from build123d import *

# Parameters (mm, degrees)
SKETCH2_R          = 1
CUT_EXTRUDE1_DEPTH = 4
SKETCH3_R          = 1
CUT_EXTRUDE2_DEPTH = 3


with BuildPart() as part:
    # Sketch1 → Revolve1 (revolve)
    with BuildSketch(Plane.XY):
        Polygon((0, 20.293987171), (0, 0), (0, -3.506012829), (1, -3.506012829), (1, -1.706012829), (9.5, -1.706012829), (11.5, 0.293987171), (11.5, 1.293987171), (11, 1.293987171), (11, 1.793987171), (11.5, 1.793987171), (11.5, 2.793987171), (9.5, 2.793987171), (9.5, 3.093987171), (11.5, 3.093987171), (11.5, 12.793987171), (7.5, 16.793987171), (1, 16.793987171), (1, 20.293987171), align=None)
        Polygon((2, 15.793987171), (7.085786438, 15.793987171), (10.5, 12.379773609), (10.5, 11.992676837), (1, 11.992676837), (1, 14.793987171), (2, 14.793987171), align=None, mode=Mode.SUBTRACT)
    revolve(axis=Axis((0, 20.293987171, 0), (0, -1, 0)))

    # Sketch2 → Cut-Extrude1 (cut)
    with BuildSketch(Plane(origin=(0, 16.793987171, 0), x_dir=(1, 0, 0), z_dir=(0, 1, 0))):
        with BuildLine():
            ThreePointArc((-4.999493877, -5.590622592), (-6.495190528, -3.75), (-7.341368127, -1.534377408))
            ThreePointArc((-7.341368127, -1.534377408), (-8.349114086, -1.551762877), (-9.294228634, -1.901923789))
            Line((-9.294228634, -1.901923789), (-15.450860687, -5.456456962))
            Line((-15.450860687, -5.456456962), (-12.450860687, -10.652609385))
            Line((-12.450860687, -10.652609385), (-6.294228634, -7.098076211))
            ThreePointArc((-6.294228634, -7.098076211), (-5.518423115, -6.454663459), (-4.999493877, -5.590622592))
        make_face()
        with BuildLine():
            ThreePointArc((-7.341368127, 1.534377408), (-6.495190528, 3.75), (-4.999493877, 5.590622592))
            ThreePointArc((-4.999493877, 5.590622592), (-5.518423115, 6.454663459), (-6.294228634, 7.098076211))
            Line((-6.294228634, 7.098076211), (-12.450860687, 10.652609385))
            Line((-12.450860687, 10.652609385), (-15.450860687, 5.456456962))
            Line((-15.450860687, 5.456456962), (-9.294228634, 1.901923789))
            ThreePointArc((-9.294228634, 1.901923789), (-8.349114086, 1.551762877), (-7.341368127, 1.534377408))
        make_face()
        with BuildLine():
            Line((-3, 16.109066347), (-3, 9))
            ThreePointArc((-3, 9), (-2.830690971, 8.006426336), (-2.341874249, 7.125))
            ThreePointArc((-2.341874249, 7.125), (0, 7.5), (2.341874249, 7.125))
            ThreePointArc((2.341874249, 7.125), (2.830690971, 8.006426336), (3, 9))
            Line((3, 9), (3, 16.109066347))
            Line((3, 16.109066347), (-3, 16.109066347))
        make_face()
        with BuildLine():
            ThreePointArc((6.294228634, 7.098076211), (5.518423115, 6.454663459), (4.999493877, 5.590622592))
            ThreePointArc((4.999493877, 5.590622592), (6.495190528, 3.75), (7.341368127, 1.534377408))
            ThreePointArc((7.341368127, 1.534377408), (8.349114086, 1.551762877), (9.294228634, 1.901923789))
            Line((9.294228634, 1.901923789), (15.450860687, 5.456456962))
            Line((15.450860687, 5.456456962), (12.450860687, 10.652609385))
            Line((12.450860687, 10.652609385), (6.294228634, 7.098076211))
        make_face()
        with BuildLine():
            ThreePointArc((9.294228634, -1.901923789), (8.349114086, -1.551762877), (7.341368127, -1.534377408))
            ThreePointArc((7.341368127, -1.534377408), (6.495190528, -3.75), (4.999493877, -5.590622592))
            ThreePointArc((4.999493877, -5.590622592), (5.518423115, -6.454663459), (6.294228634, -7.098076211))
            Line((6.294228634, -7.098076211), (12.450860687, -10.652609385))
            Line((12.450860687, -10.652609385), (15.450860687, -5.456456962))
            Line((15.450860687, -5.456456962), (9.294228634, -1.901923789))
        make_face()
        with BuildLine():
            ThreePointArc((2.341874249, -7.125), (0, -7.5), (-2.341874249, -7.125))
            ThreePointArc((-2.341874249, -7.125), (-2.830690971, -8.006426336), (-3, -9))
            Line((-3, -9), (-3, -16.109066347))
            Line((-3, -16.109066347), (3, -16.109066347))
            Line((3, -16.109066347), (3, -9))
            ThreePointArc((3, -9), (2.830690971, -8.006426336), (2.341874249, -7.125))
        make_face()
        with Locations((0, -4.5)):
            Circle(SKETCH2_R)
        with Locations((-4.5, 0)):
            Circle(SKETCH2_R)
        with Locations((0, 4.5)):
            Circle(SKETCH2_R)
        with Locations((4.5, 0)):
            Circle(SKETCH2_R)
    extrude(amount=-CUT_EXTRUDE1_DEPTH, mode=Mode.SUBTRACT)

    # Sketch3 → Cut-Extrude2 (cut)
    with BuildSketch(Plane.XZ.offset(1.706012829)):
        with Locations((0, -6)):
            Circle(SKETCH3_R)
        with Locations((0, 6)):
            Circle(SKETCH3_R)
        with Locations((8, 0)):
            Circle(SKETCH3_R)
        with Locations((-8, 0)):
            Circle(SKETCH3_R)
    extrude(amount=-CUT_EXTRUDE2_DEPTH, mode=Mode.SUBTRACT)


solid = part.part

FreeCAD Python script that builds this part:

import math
import FreeCAD as App
import Part
import Sketcher
Q = App.Units.Quantity

doc = App.newDocument("Part")
body = doc.addObject("PartDesign::Body", "Body")

# Sketch on XY plane
sketch1 = body.newObject("Sketcher::SketchObject", "Sketch")
sketch1.AttachmentSupport = (doc.getObject("XY_Plane"), [""])
sketch1.MapMode = "FlatFace"
sketch1.addGeometry(Part.LineSegment(App.Vector(0, 20.29, 0), App.Vector(0, -3.51, 0)), False)
sketch1.addGeometry(Part.LineSegment(App.Vector(0, -3.51, 0), App.Vector(1, -3.51, 0)), False)
sketch1.addGeometry(Part.LineSegment(App.Vector(1, -3.51, 0), App.Vector(1, -1.71, 0)), False)
sketch1.addGeometry(Part.LineSegment(App.Vector(1, -1.71, 0), App.Vector(9.5, -1.71, 0)), False)
sketch1.addGeometry(Part.LineSegment(App.Vector(9.5, -1.71, 0), App.Vector(11.5, 0.29, 0)), False)
sketch1.addGeometry(Part.LineSegment(App.Vector(11.5, 0.29, 0), App.Vector(11.5, 1.29, 0)), False)
sketch1.addGeometry(Part.LineSegment(App.Vector(11.5, 1.29, 0), App.Vector(11, 1.29, 0)), False)
sketch1.addGeometry(Part.LineSegment(App.Vector(11, 1.29, 0), App.Vector(11, 1.79, 0)), False)
sketch1.addGeometry(Part.LineSegment(App.Vector(11, 1.79, 0), App.Vector(11.5, 1.79, 0)), False)
sketch1.addGeometry(Part.LineSegment(App.Vector(11.5, 1.79, 0), App.Vector(11.5, 2.79, 0)), False)
sketch1.addGeometry(Part.LineSegment(App.Vector(11.5, 2.79, 0), App.Vector(9.5, 2.79, 0)), False)
sketch1.addGeometry(Part.LineSegment(App.Vector(9.5, 2.79, 0), App.Vector(9.5, 3.09, 0)), False)
sketch1.addGeometry(Part.LineSegment(App.Vector(9.5, 3.09, 0), App.Vector(11.5, 3.09, 0)), False)
sketch1.addGeometry(Part.LineSegment(App.Vector(11.5, 3.09, 0), App.Vector(11.5, 12.79, 0)), False)
sketch1.addGeometry(Part.LineSegment(App.Vector(11.5, 12.79, 0), App.Vector(7.5, 16.79, 0)), False)
sketch1.addGeometry(Part.LineSegment(App.Vector(7.5, 16.79, 0), App.Vector(1, 16.79, 0)), False)
sketch1.addGeometry(Part.LineSegment(App.Vector(1, 16.79, 0), App.Vector(1, 20.29, 0)), False)
sketch1.addGeometry(Part.LineSegment(App.Vector(1, 20.29, 0), App.Vector(0, 20.29, 0)), False)
sketch1.addGeometry(Part.LineSegment(App.Vector(2, 14.79, 0), App.Vector(2, 15.79, 0)), False)
sketch1.addGeometry(Part.LineSegment(App.Vector(2, 15.79, 0), App.Vector(7.09, 15.79, 0)), False)
sketch1.addGeometry(Part.LineSegment(App.Vector(7.09, 15.79, 0), App.Vector(10.5, 12.38, 0)), False)
sketch1.addGeometry(Part.LineSegment(App.Vector(10.5, 12.38, 0), App.Vector(10.5, 11.99, 0)), False)
sketch1.addGeometry(Part.LineSegment(App.Vector(10.5, 11.99, 0), App.Vector(1, 11.99, 0)), False)
sketch1.addGeometry(Part.LineSegment(App.Vector(1, 11.99, 0), App.Vector(1, 14.79, 0)), False)
sketch1.addGeometry(Part.LineSegment(App.Vector(1, 14.79, 0), App.Vector(2, 14.79, 0)), False)
sketch1.addConstraint(Sketcher.Constraint("Coincident", 0, 2, 1, 1))
sketch1.addConstraint(Sketcher.Constraint("Coincident", 1, 2, 2, 1))
sketch1.addConstraint(Sketcher.Constraint("Coincident", 2, 2, 3, 1))
sketch1.addConstraint(Sketcher.Constraint("Coincident", 3, 2, 4, 1))
sketch1.addConstraint(Sketcher.Constraint("Coincident", 4, 2, 5, 1))
sketch1.addConstraint(Sketcher.Constraint("Coincident", 5, 2, 6, 1))
sketch1.addConstraint(Sketcher.Constraint("Coincident", 6, 2, 7, 1))
sketch1.addConstraint(Sketcher.Constraint("Coincident", 7, 2, 8, 1))
sketch1.addConstraint(Sketcher.Constraint("Coincident", 8, 2, 9, 1))
sketch1.addConstraint(Sketcher.Constraint("Coincident", 9, 2, 10, 1))
sketch1.addConstraint(Sketcher.Constraint("Coincident", 10, 2, 11, 1))
sketch1.addConstraint(Sketcher.Constraint("Coincident", 11, 2, 12, 1))
sketch1.addConstraint(Sketcher.Constraint("Coincident", 12, 2, 13, 1))
sketch1.addConstraint(Sketcher.Constraint("Coincident", 13, 2, 14, 1))
sketch1.addConstraint(Sketcher.Constraint("Coincident", 14, 2, 15, 1))
sketch1.addConstraint(Sketcher.Constraint("Coincident", 15, 2, 16, 1))
sketch1.addConstraint(Sketcher.Constraint("Coincident", 16, 2, 17, 1))
sketch1.addConstraint(Sketcher.Constraint("Coincident", 17, 2, 0, 1))
sketch1.addConstraint(Sketcher.Constraint("Coincident", 18, 2, 19, 1))
sketch1.addConstraint(Sketcher.Constraint("Coincident", 19, 2, 20, 1))
sketch1.addConstraint(Sketcher.Constraint("Coincident", 20, 2, 21, 1))
sketch1.addConstraint(Sketcher.Constraint("Coincident", 21, 2, 22, 1))
sketch1.addConstraint(Sketcher.Constraint("Coincident", 22, 2, 23, 1))
sketch1.addConstraint(Sketcher.Constraint("Coincident", 23, 2, 24, 1))
sketch1.addConstraint(Sketcher.Constraint("Coincident", 24, 2, 18, 1))
sketch1.addConstraint(Sketcher.Constraint("Vertical", 0))
sketch1.addConstraint(Sketcher.Constraint("Horizontal", 1))
sketch1.addConstraint(Sketcher.Constraint("Vertical", 2))
sketch1.addConstraint(Sketcher.Constraint("Horizontal", 3))
sketch1.addConstraint(Sketcher.Constraint("Vertical", 5))
sketch1.addConstraint(Sketcher.Constraint("Horizontal", 6))
sketch1.addConstraint(Sketcher.Constraint("Vertical", 7))
sketch1.addConstraint(Sketcher.Constraint("Horizontal", 8))
sketch1.addConstraint(Sketcher.Constraint("Vertical", 9))
sketch1.addConstraint(Sketcher.Constraint("Horizontal", 10))
sketch1.addConstraint(Sketcher.Constraint("Vertical", 11))
sketch1.addConstraint(Sketcher.Constraint("Horizontal", 12))
sketch1.addConstraint(Sketcher.Constraint("Vertical", 13))
sketch1.addConstraint(Sketcher.Constraint("Horizontal", 15))
sketch1.addConstraint(Sketcher.Constraint("Vertical", 16))
sketch1.addConstraint(Sketcher.Constraint("Horizontal", 17))
sketch1.addConstraint(Sketcher.Constraint("Vertical", 18))
sketch1.addConstraint(Sketcher.Constraint("Horizontal", 19))
sketch1.addConstraint(Sketcher.Constraint("Vertical", 21))
sketch1.addConstraint(Sketcher.Constraint("Horizontal", 22))
sketch1.addConstraint(Sketcher.Constraint("Vertical", 23))
sketch1.addConstraint(Sketcher.Constraint("Horizontal", 24))
sketch1.addConstraint(Sketcher.Constraint("PointOnObject", 0, 2, -2))
sketch1.addConstraint(Sketcher.Constraint("Perpendicular", 4, 14))
sketch1.addConstraint(Sketcher.Constraint("Parallel", 14, 20))
sketch1.addConstraint(Sketcher.Constraint("Vertical", 5, 2, 8, 2))
sketch1.addConstraint(Sketcher.Constraint("Vertical", 3, 2, 10, 2))
sketch1.addConstraint(Sketcher.Constraint("Vertical", 9, 2, 12, 2))
sketch1.addConstraint(Sketcher.Constraint("Vertical", 2, 2, 15, 2))
sketch1.addConstraint(Sketcher.Constraint("Vertical", 16, 2, 22, 2))
sketch1.addConstraint(Sketcher.Constraint("Equal", 17, 24))
sketch1.addConstraint(Sketcher.Constraint("Equal", 24, 5))
sketch1.addConstraint(Sketcher.Constraint("Equal", 8, 7))
sketch1.addConstraint(Sketcher.Constraint("Equal", 5, 9))
sketch1.addConstraint(Sketcher.Constraint("Equal", 9, 18))
sketch1.addConstraint(Sketcher.Constraint("DistanceX", 1, 1, 1, 2, Q("1 mm")))
sketch1.addConstraint(Sketcher.Constraint("DistanceX", 10, 2, 10, 1, Q("2 mm")))
sketch1.addConstraint(Sketcher.Constraint("Angle", 4, Q("45 deg")))
sketch1.addConstraint(Sketcher.Constraint("DistanceX", 3, 1, 3, 2, Q("8.5 mm")))
sketch1.addConstraint(Sketcher.Constraint("DistanceX", 6, 2, 6, 1, Q("0.5 mm")))
sketch1.addConstraint(Sketcher.Constraint("DistanceX", 15, 2, 15, 1, Q("6.5 mm")))
sketch1.addConstraint(Sketcher.Constraint("DistanceX", 22, 2, 22, 1, Q("9.5 mm")))
sketch1.addConstraint(Sketcher.Constraint("DistanceY", 0, 2, 0, 1, Q("23.8 mm")))
sketch1.addConstraint(Sketcher.Constraint("DistanceY", 2, 1, 2, 2, Q("1.8 mm")))
sketch1.addConstraint(Sketcher.Constraint("DistanceY", 11, 1, 11, 2, Q("0.3 mm")))
sketch1.addConstraint(Sketcher.Constraint("DistanceY", 13, 1, 13, 2, Q("9.7 mm")))
sketch1.addConstraint(Sketcher.Constraint("DistanceY", 18, 2, 15, 2, Q("1 mm")))
sketch1.addConstraint(Sketcher.Constraint("DistanceY", 23, 1, 23, 2, Q("2.80131 mm")))
sketch1.addConstraint(Sketcher.Constraint("DistanceX", 19, 1, 19, 2, Q("5.085786 mm")))
sketch1.addConstraint(Sketcher.Constraint("DistanceY", 0, 2, -1, 1, Q("3.506013 mm")))
revolution = body.newObject("PartDesign::Revolution", "Revolution")
revolution.Profile = sketch1
revolution.ReferenceAxis = (sketch1, ["V_Axis"])
revolution.Angle = 360

# Sketch on XZ plane
sketch2 = body.newObject("Sketcher::SketchObject", "Sketch001")
sketch2.AttachmentSupport = (doc.getObject("XZ_Plane"), [""])
sketch2.MapMode = "FlatFace"
sketch2.AttachmentOffset = App.Placement(App.Vector(0, 0, -16.793987), App.Rotation())
sketch2.addGeometry(Part.ArcOfCircle(Part.Circle(App.Vector(0, 0, 0), App.Vector(0, 0, 1), 7.5), math.radians(132), math.radians(168)), False)
sketch2.addGeometry(Part.ArcOfCircle(Part.Circle(App.Vector(-7.8, 4.5, 0), App.Vector(0, 0, 1), 3), math.radians(-120), math.radians(-81)), False)
sketch2.addGeometry(Part.LineSegment(App.Vector(-9.3, 1.9, 0), App.Vector(-15.5, 5.5, 0)), False)
sketch2.addGeometry(Part.LineSegment(App.Vector(-15.5, 5.5, 0), App.Vector(-12.5, 10.7, 0)), False)
sketch2.addGeometry(Part.LineSegment(App.Vector(-12.5, 10.7, 0), App.Vector(-6.3, 7.1, 0)), False)
sketch2.addGeometry(Part.ArcOfCircle(Part.Circle(App.Vector(-7.8, 4.5, 0), App.Vector(0, 0, 1), 3), math.radians(21), math.radians(60)), False)
sketch2.addGeometry(Part.ArcOfCircle(Part.Circle(App.Vector(0, 0, 0), App.Vector(0, 0, 1), 7.5), math.radians(-168), math.radians(-132)), False)
sketch2.addGeometry(Part.ArcOfCircle(Part.Circle(App.Vector(-7.8, -4.5, 0), App.Vector(0, 0, 1), 3), math.radians(-60), math.radians(-21)), False)
sketch2.addGeometry(Part.LineSegment(App.Vector(-6.3, -7.1, 0), App.Vector(-12.5, -10.7, 0)), False)
sketch2.addGeometry(Part.LineSegment(App.Vector(-12.5, -10.7, 0), App.Vector(-15.5, -5.5, 0)), False)
sketch2.addGeometry(Part.LineSegment(App.Vector(-15.5, -5.5, 0), App.Vector(-9.3, -1.9, 0)), False)
sketch2.addGeometry(Part.ArcOfCircle(Part.Circle(App.Vector(-7.8, -4.5, 0), App.Vector(0, 0, 1), 3), math.radians(81), math.radians(120)), False)
sketch2.addGeometry(Part.LineSegment(App.Vector(-3, -16.1, 0), App.Vector(-3, -9, 0)), False)
sketch2.addGeometry(Part.ArcOfCircle(Part.Circle(App.Vector(0, -9, 0), App.Vector(0, 0, 1), 3), math.radians(141), math.radians(180)), False)
sketch2.addGeometry(Part.ArcOfCircle(Part.Circle(App.Vector(0, 0, 0), App.Vector(0, 0, 1), 7.5), math.radians(-108), math.radians(-72)), False)
sketch2.addGeometry(Part.ArcOfCircle(Part.Circle(App.Vector(0, -9, 0), App.Vector(0, 0, 1), 3), math.radians(0), math.radians(39)), False)
sketch2.addGeometry(Part.LineSegment(App.Vector(3, -9, 0), App.Vector(3, -16.1, 0)), False)
sketch2.addGeometry(Part.LineSegment(App.Vector(3, -16.1, 0), App.Vector(-3, -16.1, 0)), False)
sketch2.addGeometry(Part.ArcOfCircle(Part.Circle(App.Vector(7.8, -4.5, 0), App.Vector(0, 0, 1), 3), math.radians(-159), math.radians(-120)), False)
sketch2.addGeometry(Part.ArcOfCircle(Part.Circle(App.Vector(0, 0, 0), App.Vector(0, 0, 1), 7.5), math.radians(-48), math.radians(-12)), False)
sketch2.addGeometry(Part.ArcOfCircle(Part.Circle(App.Vector(7.8, -4.5, 0), App.Vector(0, 0, 1), 3), math.radians(60), math.radians(99)), False)
sketch2.addGeometry(Part.LineSegment(App.Vector(9.3, -1.9, 0), App.Vector(15.5, -5.5, 0)), False)
sketch2.addGeometry(Part.LineSegment(App.Vector(15.5, -5.5, 0), App.Vector(12.5, -10.7, 0)), False)
sketch2.addGeometry(Part.LineSegment(App.Vector(12.5, -10.7, 0), App.Vector(6.3, -7.1, 0)), False)
sketch2.addGeometry(Part.ArcOfCircle(Part.Circle(App.Vector(7.8, 4.5, 0), App.Vector(0, 0, 1), 3), math.radians(-99), math.radians(-60)), False)
sketch2.addGeometry(Part.ArcOfCircle(Part.Circle(App.Vector(0, 0, 0), App.Vector(0, 0, 1), 7.5), math.radians(12), math.radians(48)), False)
sketch2.addGeometry(Part.ArcOfCircle(Part.Circle(App.Vector(7.8, 4.5, 0), App.Vector(0, 0, 1), 3), math.radians(120), math.radians(159)), False)
sketch2.addGeometry(Part.LineSegment(App.Vector(6.3, 7.1, 0), App.Vector(12.5, 10.7, 0)), False)
sketch2.addGeometry(Part.LineSegment(App.Vector(12.5, 10.7, 0), App.Vector(15.5, 5.5, 0)), False)
sketch2.addGeometry(Part.LineSegment(App.Vector(15.5, 5.5, 0), App.Vector(9.3, 1.9, 0)), False)
sketch2.addGeometry(Part.ArcOfCircle(Part.Circle(App.Vector(0, 0, 0), App.Vector(0, 0, 1), 7.5), math.radians(72), math.radians(108)), False)
sketch2.addGeometry(Part.ArcOfCircle(Part.Circle(App.Vector(0, 9, 0), App.Vector(0, 0, 1), 3), math.radians(180), math.radians(219)), False)
sketch2.addGeometry(Part.LineSegment(App.Vector(-3, 9, 0), App.Vector(-3, 16.1, 0)), False)
sketch2.addGeometry(Part.LineSegment(App.Vector(-3, 16.1, 0), App.Vector(3, 16.1, 0)), False)
sketch2.addGeometry(Part.LineSegment(App.Vector(3, 16.1, 0), App.Vector(3, 9, 0)), False)
sketch2.addGeometry(Part.ArcOfCircle(Part.Circle(App.Vector(0, 9, 0), App.Vector(0, 0, 1), 3), math.radians(-39), math.radians(0)), False)
sketch2.addGeometry(Part.Circle(App.Vector(0, 4.5, 0), App.Vector(0, 0, 1), 1), False)
sketch2.addGeometry(Part.Circle(App.Vector(-4.5, 0, 0), App.Vector(0, 0, 1), 1), False)
sketch2.addGeometry(Part.Circle(App.Vector(0, -4.5, 0), App.Vector(0, 0, 1), 1), False)
sketch2.addGeometry(Part.Circle(App.Vector(4.5, 0, 0), App.Vector(0, 0, 1), 1), False)
sketch2.addConstraint(Sketcher.Constraint("Coincident", 0, 2, 1, 2))
sketch2.addConstraint(Sketcher.Constraint("Tangent", 1, 1, 2, 1))
sketch2.addConstraint(Sketcher.Constraint("Coincident", 2, 2, 3, 1))
sketch2.addConstraint(Sketcher.Constraint("Coincident", 3, 2, 4, 1))
sketch2.addConstraint(Sketcher.Constraint("Tangent", 4, 2, 5, 2))
sketch2.addConstraint(Sketcher.Constraint("Coincident", 5, 1, 0, 1))
sketch2.addConstraint(Sketcher.Constraint("Coincident", 6, 2, 7, 2))
sketch2.addConstraint(Sketcher.Constraint("Tangent", 7, 1, 8, 1))
sketch2.addConstraint(Sketcher.Constraint("Coincident", 8, 2, 9, 1))
sketch2.addConstraint(Sketcher.Constraint("Coincident", 9, 2, 10, 1))
sketch2.addConstraint(Sketcher.Constraint("Tangent", 10, 2, 11, 2))
sketch2.addConstraint(Sketcher.Constraint("Coincident", 11, 1, 6, 1))
sketch2.addConstraint(Sketcher.Constraint("Tangent", 12, 2, 13, 2))
sketch2.addConstraint(Sketcher.Constraint("Coincident", 13, 1, 14, 1))
sketch2.addConstraint(Sketcher.Constraint("Coincident", 14, 2, 15, 2))
sketch2.addConstraint(Sketcher.Constraint("Tangent", 15, 1, 16, 1))
sketch2.addConstraint(Sketcher.Constraint("Coincident", 16, 2, 17, 1))
sketch2.addConstraint(Sketcher.Constraint("Coincident", 17, 2, 12, 1))
sketch2.addConstraint(Sketcher.Constraint("Coincident", 18, 1, 19, 1))
sketch2.addConstraint(Sketcher.Constraint("Coincident", 19, 2, 20, 2))
sketch2.addConstraint(Sketcher.Constraint("Tangent", 20, 1, 21, 1))
sketch2.addConstraint(Sketcher.Constraint("Coincident", 21, 2, 22, 1))
sketch2.addConstraint(Sketcher.Constraint("Coincident", 22, 2, 23, 1))
sketch2.addConstraint(Sketcher.Constraint("Tangent", 23, 2, 18, 2))
sketch2.addConstraint(Sketcher.Constraint("Coincident", 24, 1, 25, 1))
sketch2.addConstraint(Sketcher.Constraint("Coincident", 25, 2, 26, 2))
sketch2.addConstraint(Sketcher.Constraint("Tangent", 26, 1, 27, 1))
sketch2.addConstraint(Sketcher.Constraint("Coincident", 27, 2, 28, 1))
sketch2.addConstraint(Sketcher.Constraint("Coincident", 28, 2, 29, 1))
sketch2.addConstraint(Sketcher.Constraint("Tangent", 29, 2, 24, 2))
sketch2.addConstraint(Sketcher.Constraint("Coincident", 30, 2, 31, 2))
sketch2.addConstraint(Sketcher.Constraint("Tangent", 31, 1, 32, 1))
sketch2.addConstraint(Sketcher.Constraint("Coincident", 32, 2, 33, 1))
sketch2.addConstraint(Sketcher.Constraint("Coincident", 33, 2, 34, 1))
sketch2.addConstraint(Sketcher.Constraint("Tangent", 34, 2, 35, 2))
sketch2.addConstraint(Sketcher.Constraint("Coincident", 35, 1, 30, 1))
sketch2.addConstraint(Sketcher.Constraint("Vertical", 12))
sketch2.addConstraint(Sketcher.Constraint("Vertical", 16))
sketch2.addConstraint(Sketcher.Constraint("Horizontal", 17))
sketch2.addConstraint(Sketcher.Constraint("Vertical", 32))
sketch2.addConstraint(Sketcher.Constraint("Horizontal", 33))
sketch2.addConstraint(Sketcher.Constraint("Vertical", 34))
sketch2.addConstraint(Sketcher.Constraint("Coincident", 0, 3, -1, 1))
sketch2.addConstraint(Sketcher.Constraint("Coincident", 6, 3, -1, 1))
sketch2.addConstraint(Sketcher.Constraint("Coincident", 14, 3, -1, 1))
sketch2.addConstraint(Sketcher.Constraint("Coincident", 19, 3, -1, 1))
sketch2.addConstraint(Sketcher.Constraint("Coincident", 25, 3, -1, 1))
sketch2.addConstraint(Sketcher.Constraint("Coincident", 30, 3, -1, 1))
sketch2.addConstraint(Sketcher.Constraint("Coincident", 5, 3, 1, 3))
sketch2.addConstraint(Sketcher.Constraint("Coincident", 11, 3, 7, 3))
sketch2.addConstraint(Sketcher.Constraint("Coincident", 15, 3, 13, 3))
sketch2.addConstraint(Sketcher.Constraint("Coincident", 20, 3, 18, 3))
sketch2.addConstraint(Sketcher.Constraint("Coincident", 26, 3, 24, 3))
sketch2.addConstraint(Sketcher.Constraint("Coincident", 35, 3, 31, 3))
sketch2.addConstraint(Sketcher.Constraint("Equal", 1, 5))
sketch2.addConstraint(Sketcher.Constraint("Equal", 0, 6))
sketch2.addConstraint(Sketcher.Constraint("Equal", 5, 7))
sketch2.addConstraint(Sketcher.Constraint("Equal", 7, 11))
sketch2.addConstraint(Sketcher.Constraint("Equal", 11, 13))
sketch2.addConstraint(Sketcher.Constraint("Equal", 6, 14))
sketch2.addConstraint(Sketcher.Constraint("Equal", 13, 15))
sketch2.addConstraint(Sketcher.Constraint("Equal", 15, 18))
sketch2.addConstraint(Sketcher.Constraint("Equal", 14, 19))
sketch2.addConstraint(Sketcher.Constraint("Equal", 18, 20))
sketch2.addConstraint(Sketcher.Constraint("Equal", 20, 24))
sketch2.addConstraint(Sketcher.Constraint("Equal", 19, 25))
sketch2.addConstraint(Sketcher.Constraint("Equal", 24, 26))
sketch2.addConstraint(Sketcher.Constraint("Equal", 25, 30))
sketch2.addConstraint(Sketcher.Constraint("Equal", 26, 31))
sketch2.addConstraint(Sketcher.Constraint("Equal", 31, 35))
sketch2.addConstraint(Sketcher.Constraint("Equal", 36, 37))
sketch2.addConstraint(Sketcher.Constraint("Equal", 37, 38))
sketch2.addConstraint(Sketcher.Constraint("Equal", 38, 39))
sketch2.addConstraint(Sketcher.Constraint("Symmetric", 1, 3, 18, 3, -1, 1))
sketch2.addConstraint(Sketcher.Constraint("Symmetric", 7, 3, 24, 3, -1, 1))
sketch2.addConstraint(Sketcher.Constraint("Symmetric", 13, 3, 31, 3, -1, 1))
sketch2.addConstraint(Sketcher.Constraint("Symmetric", 36, 3, 38, 3, -1, 1))
sketch2.addConstraint(Sketcher.Constraint("Symmetric", 37, 3, 39, 3, -1, 1))
sketch2.addConstraint(Sketcher.Constraint("Symmetric", 2, 2, 21, 2, -1, 1))
sketch2.addConstraint(Sketcher.Constraint("Symmetric", 3, 2, 22, 2, -1, 1))
sketch2.addConstraint(Sketcher.Constraint("Symmetric", 8, 2, 27, 2, -1, 1))
sketch2.addConstraint(Sketcher.Constraint("Symmetric", 9, 2, 28, 2, -1, 1))
sketch2.addConstraint(Sketcher.Constraint("Symmetric", 7, 3, 18, 3, -2))
sketch2.addConstraint(Sketcher.Constraint("Symmetric", 9, 2, 21, 2, -2))
sketch2.addConstraint(Sketcher.Constraint("Symmetric", 8, 2, 22, 2, -2))
sketch2.addConstraint(Sketcher.Constraint("Symmetric", 17, 2, 32, 2, -1))
sketch2.addConstraint(Sketcher.Constraint("PointOnObject", 36, 3, -2))
sketch2.addConstraint(Sketcher.Constraint("PointOnObject", 37, 3, -1))
sketch2.addConstraint(Sketcher.Constraint("Perpendicular", 2, 3))
sketch2.addConstraint(Sketcher.Constraint("Perpendicular", 3, 4))
sketch2.addConstraint(Sketcher.Constraint("Horizontal", 26, 3, 36, 3))
sketch2.addConstraint(Sketcher.Constraint("Diameter", 36, Q("2 mm")))
sketch2.addConstraint(Sketcher.Constraint("Radius", 1, Q("3 mm")))
sketch2.addConstraint(Sketcher.Constraint("Radius", 0, Q("7.5 mm")))
sketch2.addConstraint(Sketcher.Constraint("Angle", 2, Q("150 deg")))
sketch2.addConstraint(Sketcher.Constraint("DistanceY", 13, 3, -1, 1, Q("9 mm")))
sketch2.addConstraint(Sketcher.Constraint("DistanceY", 7, 3, 1, 3, Q("9 mm")))
sketch2.addConstraint(Sketcher.Constraint("DistanceX", 37, 3, -1, 1, Q("4.5 mm")))
sketch2.addConstraint(Sketcher.Constraint("DistanceY", 0, 2, 4, 2, Q("5.563699 mm")))
sketch2.addConstraint(Sketcher.Constraint("DistanceY", 12, 1, 12, 2, Q("7.109066 mm")))
sketch2.addConstraint(Sketcher.Constraint("DistanceX", 2, 2, -1, 1, Q("15.450861 mm")))
pocket1 = body.newObject("PartDesign::Pocket", "Pocket")
pocket1.Profile = sketch2
pocket1.Length = 4
pocket1.Reversed = True

# Sketch on XZ plane
sketch3 = body.newObject("Sketcher::SketchObject", "Sketch002")
sketch3.AttachmentSupport = (doc.getObject("XZ_Plane"), [""])
sketch3.MapMode = "FlatFace"
sketch3.AttachmentOffset = App.Placement(App.Vector(0, 0, 1.706013), App.Rotation())
sketch3.addGeometry(Part.Circle(App.Vector(0, -6, 0), App.Vector(0, 0, 1), 1), False)
sketch3.addGeometry(Part.Circle(App.Vector(0, 6, 0), App.Vector(0, 0, 1), 1), False)
sketch3.addGeometry(Part.Circle(App.Vector(8, 0, 0), App.Vector(0, 0, 1), 1), False)
sketch3.addGeometry(Part.Circle(App.Vector(-8, 0, 0), App.Vector(0, 0, 1), 1), False)
sketch3.addConstraint(Sketcher.Constraint("Equal", 0, 1))
sketch3.addConstraint(Sketcher.Constraint("Equal", 1, 2))
sketch3.addConstraint(Sketcher.Constraint("Equal", 2, 3))
sketch3.addConstraint(Sketcher.Constraint("Symmetric", 0, 3, 1, 3, -1, 1))
sketch3.addConstraint(Sketcher.Constraint("Symmetric", 2, 3, 3, 3, -1, 1))
sketch3.addConstraint(Sketcher.Constraint("PointOnObject", 0, 3, -2))
sketch3.addConstraint(Sketcher.Constraint("PointOnObject", 2, 3, -1))
sketch3.addConstraint(Sketcher.Constraint("Diameter", 0, Q("2 mm")))
sketch3.addConstraint(Sketcher.Constraint("DistanceY", 0, 3, -1, 1, Q("6 mm")))
sketch3.addConstraint(Sketcher.Constraint("DistanceX", -1, 1, 2, 3, Q("8 mm")))
pocket2 = body.newObject("PartDesign::Pocket", "Pocket001")
pocket2.Profile = sketch3
pocket2.Length = 3

doc.recompute()
